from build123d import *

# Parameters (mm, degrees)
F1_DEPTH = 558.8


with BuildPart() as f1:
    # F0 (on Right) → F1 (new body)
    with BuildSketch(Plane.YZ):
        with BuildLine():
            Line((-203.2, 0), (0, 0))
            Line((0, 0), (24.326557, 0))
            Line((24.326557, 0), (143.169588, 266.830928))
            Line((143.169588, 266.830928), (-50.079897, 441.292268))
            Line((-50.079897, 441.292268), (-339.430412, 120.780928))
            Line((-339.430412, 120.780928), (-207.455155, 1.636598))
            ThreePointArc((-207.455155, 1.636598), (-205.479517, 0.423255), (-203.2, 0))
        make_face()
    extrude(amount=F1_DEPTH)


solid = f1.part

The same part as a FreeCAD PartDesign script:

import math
import FreeCAD as App
import Part
import Sketcher
from FreeCAD import Vector
Q = App.Units.Quantity

doc = App.newDocument("Part")
body = doc.addObject("PartDesign::Body", "Body")

sketch1 = body.newObject("Sketcher::SketchObject", "Sketch")
sketch1.AttachmentSupport = (doc.getObject("YZ_Plane"), [""])
sketch1.MapMode = "FlatFace"
sketch1.addGeometry(Part.LineSegment(Vector(-203.2, 0, 0), Vector(24.3, 0, 0)), False)
sketch1.addGeometry(Part.LineSegment(Vector(24.3, 0, 0), Vector(143.2, 266.8, 0)), False)
sketch1.addGeometry(Part.LineSegment(Vector(143.2, 266.8, 0), Vector(-50.1, 441.3, 0)), False)
sketch1.addGeometry(Part.LineSegment(Vector(-50.1, 441.3, 0), Vector(-339.4, 120.8, 0)), False)
sketch1.addGeometry(Part.LineSegment(Vector(-339.4, 120.8, 0), Vector(-207.5, 1.6, 0)), False)
sketch1.addGeometry(Part.ArcOfCircle(Part.Circle(Vector(-203.2, 6.3, 0), Vector(0, 0, 1), 6.3), math.radians(-132), math.radians(-90)), False)
sketch1.addConstraint(Sketcher.Constraint("Coincident", 0, 2, 1, 1))
sketch1.addConstraint(Sketcher.Constraint("Coincident", 1, 2, 2, 1))
sketch1.addConstraint(Sketcher.Constraint("Coincident", 2, 2, 3, 1))
sketch1.addConstraint(Sketcher.Constraint("Coincident", 3, 2, 4, 1))
sketch1.addConstraint(Sketcher.Constraint("Tangent", 4, 2, 5, 1))
sketch1.addConstraint(Sketcher.Constraint("Tangent", 5, 2, 0, 1))
sketch1.addConstraint(Sketcher.Constraint("Horizontal", 0))
sketch1.addConstraint(Sketcher.Constraint("PointOnObject", 0, 2, -1))
sketch1.addConstraint(Sketcher.Constraint("Perpendicular", 2, 3))
sketch1.addConstraint(Sketcher.Constraint("Perpendicular", 3, 4))
sketch1.addConstraint(Sketcher.Constraint("Radius", 5, Q("0.2499999 in")))
sketch1.addConstraint(Sketcher.Constraint("Distance", 3, Q("17 in")))
sketch1.addConstraint(Sketcher.Constraint("Distance", 4, Q("7 in")))
sketch1.addConstraint(Sketcher.Constraint("DistanceX", 5, 3, -1, 1, Q("8.0000001 in")))
sketch1.addConstraint(Sketcher.Constraint("DistanceX", 3, 2, 1, 2, Q("19 in")))
sketch1.addConstraint(Sketcher.Constraint("Distance", 1, Q("11.5 in")))
sketch1.addConstraint(Sketcher.Constraint("Distance", 2, Q("10.25 in")))
pad1 = body.newObject("PartDesign::Pad", "Pad")
pad1.Profile = sketch1
pad1.Length = Q("22 in")

doc.recompute()
